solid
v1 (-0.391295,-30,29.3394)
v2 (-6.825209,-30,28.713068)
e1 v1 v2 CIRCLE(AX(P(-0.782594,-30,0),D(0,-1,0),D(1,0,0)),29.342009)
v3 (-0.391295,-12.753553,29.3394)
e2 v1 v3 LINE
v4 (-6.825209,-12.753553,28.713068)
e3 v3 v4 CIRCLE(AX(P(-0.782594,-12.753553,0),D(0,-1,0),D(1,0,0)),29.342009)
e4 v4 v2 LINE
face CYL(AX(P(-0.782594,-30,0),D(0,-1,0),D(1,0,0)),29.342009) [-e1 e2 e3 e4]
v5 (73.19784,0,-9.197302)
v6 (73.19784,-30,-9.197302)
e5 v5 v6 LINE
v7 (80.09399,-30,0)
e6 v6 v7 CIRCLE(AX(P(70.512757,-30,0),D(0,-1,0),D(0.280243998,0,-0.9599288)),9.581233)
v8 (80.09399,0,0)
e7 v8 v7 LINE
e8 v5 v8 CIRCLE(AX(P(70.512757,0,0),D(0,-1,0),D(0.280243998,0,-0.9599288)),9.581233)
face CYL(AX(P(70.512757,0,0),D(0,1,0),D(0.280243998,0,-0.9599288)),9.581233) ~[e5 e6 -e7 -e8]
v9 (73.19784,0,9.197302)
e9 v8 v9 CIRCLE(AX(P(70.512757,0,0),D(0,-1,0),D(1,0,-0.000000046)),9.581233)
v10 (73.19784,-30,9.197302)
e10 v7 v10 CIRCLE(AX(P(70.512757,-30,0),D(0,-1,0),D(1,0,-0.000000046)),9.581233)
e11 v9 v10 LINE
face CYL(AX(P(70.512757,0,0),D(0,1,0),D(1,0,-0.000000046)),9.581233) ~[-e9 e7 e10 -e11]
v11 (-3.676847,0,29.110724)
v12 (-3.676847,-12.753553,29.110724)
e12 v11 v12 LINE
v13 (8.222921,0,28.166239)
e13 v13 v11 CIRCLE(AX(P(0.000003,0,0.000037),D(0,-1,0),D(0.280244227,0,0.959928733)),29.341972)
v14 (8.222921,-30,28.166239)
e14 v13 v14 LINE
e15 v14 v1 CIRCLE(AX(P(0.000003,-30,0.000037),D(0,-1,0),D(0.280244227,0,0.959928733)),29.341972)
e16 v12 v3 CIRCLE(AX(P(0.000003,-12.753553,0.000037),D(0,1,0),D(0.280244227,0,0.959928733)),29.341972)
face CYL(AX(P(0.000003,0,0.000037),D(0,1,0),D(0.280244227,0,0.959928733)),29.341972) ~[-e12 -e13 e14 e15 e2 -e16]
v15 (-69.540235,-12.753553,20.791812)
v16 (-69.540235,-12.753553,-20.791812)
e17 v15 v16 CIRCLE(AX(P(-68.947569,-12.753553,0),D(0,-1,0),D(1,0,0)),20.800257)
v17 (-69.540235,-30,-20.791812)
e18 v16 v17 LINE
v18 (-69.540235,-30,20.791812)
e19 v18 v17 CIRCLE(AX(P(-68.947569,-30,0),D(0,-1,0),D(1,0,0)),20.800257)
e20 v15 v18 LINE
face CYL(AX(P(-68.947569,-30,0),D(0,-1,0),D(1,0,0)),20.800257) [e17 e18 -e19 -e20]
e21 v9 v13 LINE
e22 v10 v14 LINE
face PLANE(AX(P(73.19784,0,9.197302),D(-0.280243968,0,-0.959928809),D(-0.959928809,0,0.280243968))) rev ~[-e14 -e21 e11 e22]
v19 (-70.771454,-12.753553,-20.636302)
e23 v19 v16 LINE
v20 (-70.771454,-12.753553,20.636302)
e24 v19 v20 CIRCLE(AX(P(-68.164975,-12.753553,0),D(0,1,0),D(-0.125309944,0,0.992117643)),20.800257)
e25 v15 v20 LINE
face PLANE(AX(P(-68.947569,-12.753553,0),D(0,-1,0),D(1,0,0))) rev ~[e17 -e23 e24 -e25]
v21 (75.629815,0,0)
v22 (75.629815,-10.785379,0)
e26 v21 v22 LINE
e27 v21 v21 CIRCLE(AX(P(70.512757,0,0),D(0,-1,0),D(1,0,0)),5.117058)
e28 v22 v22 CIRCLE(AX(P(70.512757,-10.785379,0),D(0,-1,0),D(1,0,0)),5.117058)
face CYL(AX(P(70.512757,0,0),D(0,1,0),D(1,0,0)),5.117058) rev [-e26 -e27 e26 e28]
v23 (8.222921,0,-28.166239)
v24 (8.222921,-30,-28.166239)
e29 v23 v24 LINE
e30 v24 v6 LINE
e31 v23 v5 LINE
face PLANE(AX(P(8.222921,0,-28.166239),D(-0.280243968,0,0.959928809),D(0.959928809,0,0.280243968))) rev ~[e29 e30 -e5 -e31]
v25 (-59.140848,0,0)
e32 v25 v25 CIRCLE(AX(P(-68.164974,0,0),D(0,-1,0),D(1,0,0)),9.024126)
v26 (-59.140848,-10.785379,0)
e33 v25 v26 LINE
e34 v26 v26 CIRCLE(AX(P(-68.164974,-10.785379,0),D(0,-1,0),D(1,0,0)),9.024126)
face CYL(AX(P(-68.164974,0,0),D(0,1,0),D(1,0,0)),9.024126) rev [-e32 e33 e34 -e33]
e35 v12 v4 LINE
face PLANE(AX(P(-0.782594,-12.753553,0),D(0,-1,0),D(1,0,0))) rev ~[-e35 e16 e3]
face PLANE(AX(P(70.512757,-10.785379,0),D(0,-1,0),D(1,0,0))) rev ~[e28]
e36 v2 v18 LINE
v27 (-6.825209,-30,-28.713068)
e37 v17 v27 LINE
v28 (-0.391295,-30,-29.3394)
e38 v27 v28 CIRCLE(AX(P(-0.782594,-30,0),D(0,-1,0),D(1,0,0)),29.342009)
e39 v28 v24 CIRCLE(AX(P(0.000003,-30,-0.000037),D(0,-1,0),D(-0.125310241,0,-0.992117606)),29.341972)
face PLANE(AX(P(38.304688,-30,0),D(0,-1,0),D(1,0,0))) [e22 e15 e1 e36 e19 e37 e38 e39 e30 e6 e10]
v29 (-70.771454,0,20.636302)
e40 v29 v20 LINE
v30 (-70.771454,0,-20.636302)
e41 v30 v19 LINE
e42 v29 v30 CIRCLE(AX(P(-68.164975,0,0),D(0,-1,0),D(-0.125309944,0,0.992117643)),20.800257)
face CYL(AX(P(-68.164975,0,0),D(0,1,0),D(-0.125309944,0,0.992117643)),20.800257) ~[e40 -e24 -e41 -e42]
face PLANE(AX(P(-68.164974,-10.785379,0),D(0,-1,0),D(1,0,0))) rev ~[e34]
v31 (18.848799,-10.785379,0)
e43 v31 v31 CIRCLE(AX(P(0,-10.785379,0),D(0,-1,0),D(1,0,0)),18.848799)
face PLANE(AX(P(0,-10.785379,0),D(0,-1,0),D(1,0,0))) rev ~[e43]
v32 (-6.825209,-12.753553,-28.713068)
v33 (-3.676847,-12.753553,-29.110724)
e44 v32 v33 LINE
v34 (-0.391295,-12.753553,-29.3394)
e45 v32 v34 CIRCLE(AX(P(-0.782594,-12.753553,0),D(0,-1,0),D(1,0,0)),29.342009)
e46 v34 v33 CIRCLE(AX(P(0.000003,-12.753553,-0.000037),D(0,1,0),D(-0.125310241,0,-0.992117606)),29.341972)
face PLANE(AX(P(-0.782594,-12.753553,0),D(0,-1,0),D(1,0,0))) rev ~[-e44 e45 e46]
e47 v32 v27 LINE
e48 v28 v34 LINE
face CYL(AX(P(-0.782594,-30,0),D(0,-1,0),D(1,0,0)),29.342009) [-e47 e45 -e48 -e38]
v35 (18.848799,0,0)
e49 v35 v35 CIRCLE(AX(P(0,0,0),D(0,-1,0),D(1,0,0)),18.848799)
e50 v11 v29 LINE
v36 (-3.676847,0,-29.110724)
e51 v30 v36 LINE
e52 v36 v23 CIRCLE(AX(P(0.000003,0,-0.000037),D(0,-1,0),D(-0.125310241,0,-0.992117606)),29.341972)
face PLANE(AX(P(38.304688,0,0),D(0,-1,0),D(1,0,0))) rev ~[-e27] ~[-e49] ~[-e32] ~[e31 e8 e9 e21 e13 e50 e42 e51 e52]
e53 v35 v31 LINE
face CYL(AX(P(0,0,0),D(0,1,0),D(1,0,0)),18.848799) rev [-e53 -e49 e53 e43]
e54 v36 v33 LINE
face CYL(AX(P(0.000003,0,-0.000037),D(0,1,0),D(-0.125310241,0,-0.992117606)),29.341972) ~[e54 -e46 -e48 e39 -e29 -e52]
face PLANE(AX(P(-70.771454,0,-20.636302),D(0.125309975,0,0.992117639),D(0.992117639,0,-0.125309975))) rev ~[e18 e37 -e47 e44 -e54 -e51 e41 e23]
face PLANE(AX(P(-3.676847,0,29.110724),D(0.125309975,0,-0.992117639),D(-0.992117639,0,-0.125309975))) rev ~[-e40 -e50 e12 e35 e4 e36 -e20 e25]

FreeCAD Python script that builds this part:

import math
import FreeCAD as App
import Part
import Sketcher
Q = App.Units.Quantity

doc = App.newDocument("Part")
params = doc.addObject("Spreadsheet::Sheet", "Params")
for row, (alias, value) in enumerate([
    ("pad1_length", "30 mm"),
    ("pocket1_length", "10.785379 mm"),
    ("pad2_length", "17.246447 mm"),
    ("pocket2_length", "0.934202 mm"),
], start=1):
    params.set(f"A{row}", alias)
    params.set(f"B{row}", "=" + value)
    params.setAlias(f"B{row}", alias)

body = doc.addObject("PartDesign::Body", "Body")

# Sketch on XZ plane
sketch1 = body.newObject("Sketcher::SketchObject", "Sketch")
sketch1.AttachmentSupport = (doc.getObject("XZ_Plane"), [""])
sketch1.MapMode = "FlatFace"
sketch1.addGeometry([
    Part.LineSegment(App.Vector(8.222921, -28.166239, 0), App.Vector(73.19784, -9.197302, 0)),  # 0
    Part.ArcOfCircle(Part.Circle(App.Vector(70.512757, 0, 0), App.Vector(0, 0, 1), 9.581233), math.radians(-73.725232), math.radians(0.000003)),  # 1
    Part.ArcOfCircle(Part.Circle(App.Vector(70.512757, 0, 0), App.Vector(0, 0, 1), 9.581233), math.radians(-0.000003), math.radians(73.725232)),  # 2
    Part.LineSegment(App.Vector(73.19784, 9.197302, 0), App.Vector(8.222921, 28.166239, 0)),  # 3
    Part.ArcOfCircle(Part.Circle(App.Vector(0.000003, 0.000037, 0), App.Vector(0, 0, 1), 29.341972), math.radians(73.725219), math.radians(97.198672)),  # 4
    Part.LineSegment(App.Vector(-3.676847, 29.110724, 0), App.Vector(-70.771454, 20.636302, 0)),  # 5
    Part.ArcOfCircle(Part.Circle(App.Vector(-68.164975, 0, 0), App.Vector(0, 0, 1), 20.800257), math.radians(97.198655), math.radians(262.801345)),  # 6
    Part.LineSegment(App.Vector(-70.771454, -20.636302, 0), App.Vector(-3.676847, -29.110724, 0)),  # 7
    Part.ArcOfCircle(Part.Circle(App.Vector(0.000003, -0.000037, 0), App.Vector(0, 0, 1), 29.341972), math.radians(-97.198672), math.radians(-73.725219)),  # 8
], False)
sketch1.addConstraint([
    Sketcher.Constraint("Tangent", 0, 2, 1, 1),
    Sketcher.Constraint("Tangent", 1, 2, 2, 1),
    Sketcher.Constraint("Tangent", 2, 2, 3, 1),
    Sketcher.Constraint("Tangent", 3, 2, 4, 1),
    Sketcher.Constraint("Tangent", 4, 2, 5, 1),
    Sketcher.Constraint("Tangent", 5, 2, 6, 1),
    Sketcher.Constraint("Tangent", 6, 2, 7, 1),
    Sketcher.Constraint("Tangent", 7, 2, 8, 1),
    Sketcher.Constraint("Tangent", 8, 2, 0, 1),
    Sketcher.Constraint("Equal", 1, 2),
    Sketcher.Constraint("Equal", 4, 8),
    Sketcher.Constraint("Symmetric", 4, 3, 8, 3, -1, 1),
    Sketcher.Constraint("Symmetric", 0, 2, 2, 2, -1),
    Sketcher.Constraint("PointOnObject", 6, 3, -1),
    Sketcher.Constraint("PointOnObject", 1, 2, -1),
    Sketcher.Constraint("Radius", 1, Q("9.581233 mm")),
    Sketcher.Constraint("Radius", 4, Q("29.341972 mm")),
    Sketcher.Constraint("Radius", 6, Q("20.800257 mm")),
    Sketcher.Constraint("DistanceY", -1, 1, 2, 2, Q("9.197302 mm")),
    Sketcher.Constraint("DistanceX", -1, 1, 0, 2, Q("73.19784 mm")),
    Sketcher.Constraint("DistanceX", 6, 3, 1, 3, Q("138.677732 mm")),
])
pad1 = body.newObject("PartDesign::Pad", "Pad")
pad1.Profile = sketch1
pad1.setExpression("Length", "Params.pad1_length")

# Sketch on XZ plane
sketch2 = body.newObject("Sketcher::SketchObject", "Sketch001")
sketch2.AttachmentSupport = (doc.getObject("XZ_Plane"), [""])
sketch2.MapMode = "FlatFace"
sketch2.addGeometry([
    Part.Circle(App.Vector(-68, 0, 0), App.Vector(0, 0, 1), 9),
    Part.Circle(App.Vector(0, 0, 0), App.Vector(0, 0, 1), 19),
    Part.Circle(App.Vector(71, 0, 0), App.Vector(0, 0, 1), 5),
], False)
sketch2.addConstraint([
    Sketcher.Constraint("Coincident", 1, 3, -1, 1),
    Sketcher.Constraint("PointOnObject", 0, 3, -1),
    Sketcher.Constraint("PointOnObject", 2, 3, -1),
    Sketcher.Constraint("Diameter", 0, Q("18.048252 mm")),
    Sketcher.Constraint("Diameter", 1, Q("37.697598 mm")),
    Sketcher.Constraint("Diameter", 2, Q("10.234116 mm")),
    Sketcher.Constraint("DistanceX", 0, 3, 2, 3, Q("138.677731 mm")),
    Sketcher.Constraint("DistanceX", 0, 3, -1, 1, Q("68.164974 mm")),
])
pocket1 = body.newObject("PartDesign::Pocket", "Pocket")
pocket1.Profile = sketch2
pocket1.setExpression("Length", "Params.pocket1_length")
pocket1.Reversed = True

# Sketch on XZ plane
sketch3 = body.newObject("Sketcher::SketchObject", "Sketch002")
sketch3.AttachmentSupport = (doc.getObject("XZ_Plane"), [""])
sketch3.MapMode = "FlatFace"
sketch3.AttachmentOffset = App.Placement(App.Vector(0, 0, 30), App.Rotation())
sketch3.addGeometry([
    Part.Circle(App.Vector(-69, 0, 0), App.Vector(0, 0, 1), 21),
    Part.Circle(App.Vector(-1, 0, 0), App.Vector(0, 0, 1), 29),
    Part.Circle(App.Vector(70, 0, 0), App.Vector(0, 0, 1), 10),
], False)
sketch3.addConstraint([
    Sketcher.Constraint("PointOnObject", 0, 3, -1),
    Sketcher.Constraint("PointOnObject", 1, 3, -1),
    Sketcher.Constraint("PointOnObject", 2, 3, -1),
    Sketcher.Constraint("Diameter", 1, Q("58.684018 mm")),
    Sketcher.Constraint("Diameter", 0, Q("41.600514 mm")),
    Sketcher.Constraint("Diameter", 2, Q("19.162466 mm")),
    Sketcher.Constraint("DistanceX", 0, 3, -1, 1, Q("68.947569 mm")),
    Sketcher.Constraint("DistanceX", 0, 3, 2, 3, Q("138.677732 mm")),
    Sketcher.Constraint("DistanceX", 1, 3, -1, 1, Q("0.782594 mm")),
])
pad2 = body.newObject("PartDesign::Pad", "Pad001")
pad2.Profile = sketch3
pad2.setExpression("Length", "Params.pad2_length")
pad2.Reversed = True

# Sketch on XZ plane
sketch4 = body.newObject("Sketcher::SketchObject", "Sketch003")
sketch4.AttachmentSupport = (doc.getObject("XZ_Plane"), [""])
sketch4.MapMode = "FlatFace"
sketch4.addGeometry([
    Part.ArcOfCircle(Part.Circle(App.Vector(-68.164975, -0.000001, 0), App.Vector(0, 0, 1), 20.800258), math.radians(0.000002), math.radians(97.198655)),  # 0
    Part.ArcOfCircle(Part.Circle(App.Vector(-68.164975, 0, 0), App.Vector(0, 0, 1), 20.800257), math.radians(97.198655), math.radians(262.801345)),  # 1
    Part.ArcOfCircle(Part.Circle(App.Vector(-68.164975, 0.000001, 0), App.Vector(0, 0, 1), 20.800258), math.radians(-97.198655), math.radians(-0.000002)),  # 2
    Part.Circle(App.Vector(-68.164974, 0, 0), App.Vector(0, 0, 1), 9.024126),  # 3
    Part.ArcOfCircle(Part.Circle(App.Vector(0, 0, 0), App.Vector(0, 0, 1), 29.342009), math.radians(-73.725235), math.radians(-0.000001)),  # 4
    Part.ArcOfCircle(Part.Circle(App.Vector(0, 0, 0), App.Vector(0, 0, 1), 29.342009), math.radians(0.000001), math.radians(73.725235)),  # 5
    Part.ArcOfCircle(Part.Circle(App.Vector(0.000003, 0.000037, 0), App.Vector(0, 0, 1), 29.341972), math.radians(73.725219), math.radians(97.198672)),  # 6
    Part.ArcOfCircle(Part.Circle(App.Vector(-0.000001, 0, 0), App.Vector(0, 0, 1), 29.342008), math.radians(97.198657), math.radians(262.801343)),  # 7
    Part.ArcOfCircle(Part.Circle(App.Vector(0.000003, -0.000037, 0), App.Vector(0, 0, 1), 29.341972), math.radians(-97.198672), math.radians(-73.725219)),  # 8
    Part.Circle(App.Vector(0, 0, 0), App.Vector(0, 0, 1), 18.848799),  # 9
    Part.ArcOfCircle(Part.Circle(App.Vector(70.512757, 0, 0), App.Vector(0, 0, 1), 9.581233), math.radians(-0.000003), math.radians(73.725232)),  # 10
    Part.ArcOfCircle(Part.Circle(App.Vector(70.512757, 0, 0), App.Vector(0, 0, 1), 9.581233), math.radians(73.725235), math.radians(286.274765)),  # 11
    Part.ArcOfCircle(Part.Circle(App.Vector(70.512757, 0, 0), App.Vector(0, 0, 1), 9.581233), math.radians(-73.725232), math.radians(0.000003)),  # 12
    Part.Circle(App.Vector(70.512757, 0, 0), App.Vector(0, 0, 1), 5.117058),  # 13
], False)
sketch4.addConstraint([
    Sketcher.Constraint("Coincident", 0, 2, 1, 1),
    Sketcher.Constraint("Coincident", 1, 2, 2, 1),
    Sketcher.Constraint("Coincident", 2, 2, 0, 1),
    Sketcher.Constraint("Coincident", 4, 2, 5, 1),
    Sketcher.Constraint("Coincident", 5, 2, 6, 1),
    Sketcher.Constraint("Coincident", 6, 2, 7, 1),
    Sketcher.Constraint("Coincident", 7, 2, 8, 1),
    Sketcher.Constraint("Coincident", 8, 2, 4, 1),
    Sketcher.Constraint("Coincident", 10, 2, 11, 1),
    Sketcher.Constraint("Coincident", 11, 2, 12, 1),
    Sketcher.Constraint("Coincident", 12, 2, 10, 1),
    Sketcher.Constraint("Coincident", 4, 3, -1, 1),
    Sketcher.Constraint("Coincident", 5, 3, -1, 1),
    Sketcher.Constraint("Coincident", 7, 3, -1, 1),
    Sketcher.Constraint("Coincident", 9, 3, -1, 1),
    Sketcher.Constraint("Coincident", 1, 3, 0, 3),
    Sketcher.Constraint("Coincident", 3, 3, 0, 3),
    Sketcher.Constraint("Coincident", 11, 3, 10, 3),
    Sketcher.Constraint("Coincident", 13, 3, 10, 3),
    Sketcher.Constraint("PointOnObject", 0, 3, -1),
    Sketcher.Constraint("PointOnObject", 2, 3, -1),
    Sketcher.Constraint("PointOnObject", 10, 3, -1),
    Sketcher.Constraint("PointOnObject", 12, 3, -1),
    Sketcher.Constraint("PointOnObject", 2, 2, -1),
    Sketcher.Constraint("PointOnObject", 4, 2, -1),
    Sketcher.Constraint("PointOnObject", 12, 2, -1),
    Sketcher.Constraint("Radius", 4, Q("29.342009 mm")),
    Sketcher.Constraint("Radius", 7, Q("29.342008 mm")),
    Sketcher.Constraint("Diameter", 3, Q("18.048252 mm")),
    Sketcher.Constraint("Diameter", 9, Q("37.697598 mm")),
    Sketcher.Constraint("Diameter", 13, Q("10.234116 mm")),
    Sketcher.Constraint("Radius", 0, Q("20.800258 mm")),
    Sketcher.Constraint("Radius", 6, Q("29.341972 mm")),
    Sketcher.Constraint("Radius", 8, Q("29.341972 mm")),
    Sketcher.Constraint("Radius", 10, Q("9.581233 mm")),
    Sketcher.Constraint("DistanceY", -1, 1, 0, 2, Q("20.636302 mm")),
    Sketcher.Constraint("DistanceY", -1, 1, 10, 2, Q("9.197302 mm")),
    Sketcher.Constraint("DistanceY", 1, 2, 0, 3, Q("20.636301 mm")),
    Sketcher.Constraint("DistanceY", 11, 2, 12, 3, Q("9.197302 mm")),
    Sketcher.Constraint("DistanceX", -1, 1, 5, 2, Q("8.222921 mm")),
    Sketcher.Constraint("DistanceX", -1, 1, 8, 2, Q("8.222921 mm")),
    Sketcher.Constraint("DistanceX", -1, 1, 10, 2, Q("73.19784 mm")),
    Sketcher.Constraint("DistanceX", 6, 2, 6, 3, Q("3.67685 mm")),
    Sketcher.Constraint("DistanceX", 7, 2, 8, 3, Q("3.67685 mm")),
    Sketcher.Constraint("DistanceX", 0, 3, -1, 1, Q("68.164975 mm")),
])
pocket2 = body.newObject("PartDesign::Pocket", "Pocket001")
pocket2.Profile = sketch4
pocket2.setExpression("Length", "Params.pocket2_length")

doc.recompute()
